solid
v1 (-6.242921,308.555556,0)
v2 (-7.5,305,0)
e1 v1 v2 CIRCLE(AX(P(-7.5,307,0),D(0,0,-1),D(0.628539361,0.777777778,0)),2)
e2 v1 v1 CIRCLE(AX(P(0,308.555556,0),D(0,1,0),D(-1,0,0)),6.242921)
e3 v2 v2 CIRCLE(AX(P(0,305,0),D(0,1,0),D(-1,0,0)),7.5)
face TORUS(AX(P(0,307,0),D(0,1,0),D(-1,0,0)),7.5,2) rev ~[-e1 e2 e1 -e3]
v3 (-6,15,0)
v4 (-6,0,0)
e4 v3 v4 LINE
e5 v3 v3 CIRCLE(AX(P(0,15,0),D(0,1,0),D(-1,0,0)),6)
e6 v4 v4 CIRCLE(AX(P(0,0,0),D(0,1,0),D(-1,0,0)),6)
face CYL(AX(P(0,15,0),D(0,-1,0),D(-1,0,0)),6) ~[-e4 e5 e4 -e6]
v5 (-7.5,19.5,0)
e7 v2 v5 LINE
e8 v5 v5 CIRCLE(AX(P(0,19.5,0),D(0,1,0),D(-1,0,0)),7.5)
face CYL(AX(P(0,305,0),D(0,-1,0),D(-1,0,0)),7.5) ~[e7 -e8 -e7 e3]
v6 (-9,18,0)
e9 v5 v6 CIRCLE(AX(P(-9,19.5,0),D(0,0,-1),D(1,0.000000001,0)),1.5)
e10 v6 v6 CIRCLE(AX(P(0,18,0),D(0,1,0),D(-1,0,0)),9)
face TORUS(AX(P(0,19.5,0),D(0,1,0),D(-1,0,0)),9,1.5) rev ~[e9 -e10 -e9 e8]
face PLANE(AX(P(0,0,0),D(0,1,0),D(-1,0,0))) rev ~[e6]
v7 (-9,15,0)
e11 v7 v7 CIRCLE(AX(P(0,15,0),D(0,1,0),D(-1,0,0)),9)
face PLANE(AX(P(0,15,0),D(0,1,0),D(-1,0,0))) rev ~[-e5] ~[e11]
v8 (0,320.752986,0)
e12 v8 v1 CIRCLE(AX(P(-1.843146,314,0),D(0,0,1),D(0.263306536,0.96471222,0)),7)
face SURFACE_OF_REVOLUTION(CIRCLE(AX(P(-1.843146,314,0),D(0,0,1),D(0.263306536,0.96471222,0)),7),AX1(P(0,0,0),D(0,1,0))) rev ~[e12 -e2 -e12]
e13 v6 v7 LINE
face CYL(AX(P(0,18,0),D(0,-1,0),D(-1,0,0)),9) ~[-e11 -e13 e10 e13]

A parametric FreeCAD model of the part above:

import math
import FreeCAD as App
import Part
import Sketcher

V = App.Vector
Q = App.Units.Quantity

doc = App.newDocument("Part")
params = doc.addObject("Spreadsheet::Sheet", "Params")
for row, (alias, value) in enumerate([
    ("sketch1_radius", "7 mm"),
    ("sketch1_radius2", "2 mm"),
    ("sketch1_radius3", "1.5 mm"),
    ("sketch1_width", "6 mm"),
    ("sketch1_width2", "3 mm"),
    ("revolution_angle", "360 deg"),
], start=1):
    params.set(f"A{row}", alias)
    params.set(f"B{row}", "=" + value)
    params.setAlias(f"B{row}", alias)

body = doc.addObject("PartDesign::Body", "Body")

sketch1 = body.newObject("Sketcher::SketchObject", "Sketch")
sketch1.AttachmentSupport = (doc.getObject("XY_Plane"), [""])
sketch1.MapMode = "FlatFace"
sketch1.addGeometry([
    Part.LineSegment(V(-6, 0, 0), V(0, 0, 0)),
    Part.LineSegment(V(0, 0, 0), V(0, 320.8, 0)),
    Part.ArcOfCircle(Part.Circle(V(-1.8, 314, 0), V(0, 0, 1), 7), math.radians(75), math.radians(231)),
    Part.ArcOfCircle(Part.Circle(V(-7.5, 307, 0), V(0, 0, 1), 2), math.radians(-90), math.radians(51)),
    Part.LineSegment(V(-7.5, 305, 0), V(-7.5, 19.5, 0)),
    Part.ArcOfCircle(Part.Circle(V(-9, 19.5, 0), V(0, 0, 1), 1.5), math.radians(-90), math.radians(0)),
    Part.LineSegment(V(-9, 18, 0), V(-9, 15, 0)),
    Part.LineSegment(V(-9, 15, 0), V(-6, 15, 0)),
    Part.LineSegment(V(-6, 15, 0), V(-6, 0, 0)),
], False)
sketch1.addConstraint([
    Sketcher.Constraint("Coincident", 0, 2, 1, 1),
    Sketcher.Constraint("Coincident", 1, 2, 2, 1),
    Sketcher.Constraint("Tangent", 2, 2, 3, 2),
    Sketcher.Constraint("Coincident", 3, 1, 4, 1),
    Sketcher.Constraint("Tangent", 4, 2, 5, 2),
    Sketcher.Constraint("Coincident", 5, 1, 6, 1),
    Sketcher.Constraint("Coincident", 6, 2, 7, 1),
    Sketcher.Constraint("Coincident", 7, 2, 8, 1),
    Sketcher.Constraint("Coincident", 8, 2, 0, 1),
    Sketcher.Constraint("Horizontal", 0),
    Sketcher.Constraint("Vertical", 1),
    Sketcher.Constraint("Vertical", 4),
    Sketcher.Constraint("Vertical", 6),
    Sketcher.Constraint("Horizontal", 7),
    Sketcher.Constraint("Vertical", 8),
    Sketcher.Constraint("Coincident", 0, 2, -1, 1),
    Sketcher.Constraint("Equal", 7, 6),
    Sketcher.Constraint("Radius", 2, Q("7 mm")),
    Sketcher.Constraint("Radius", 3, Q("2 mm")),
    Sketcher.Constraint("Radius", 5, Q("1.5 mm")),
    Sketcher.Constraint("DistanceX", 0, 1, 0, 2, Q("6 mm")),
    Sketcher.Constraint("DistanceX", 7, 1, 7, 2, Q("3 mm")),
    Sketcher.Constraint("DistanceY", 8, 2, 8, 1, Q("15 mm")),
    Sketcher.Constraint("DistanceY", 4, 2, 4, 1, Q("285.5 mm")),
    Sketcher.Constraint("DistanceY", -1, 1, 2, 3, Q("314 mm")),
    Sketcher.Constraint("DistanceX", 5, 3, -1, 1, Q("9 mm")),
    Sketcher.Constraint("DistanceX", 3, 3, -1, 1, Q("7.5 mm")),
])
sketch1.setExpression("Constraints[17]", "Params.sketch1_radius")
sketch1.setExpression("Constraints[18]", "Params.sketch1_radius2")
sketch1.setExpression("Constraints[19]", "Params.sketch1_radius3")
sketch1.setExpression("Constraints[20]", "Params.sketch1_width")
sketch1.setExpression("Constraints[21]", "Params.sketch1_width2")
revolution = body.newObject("PartDesign::Revolution", "Revolution")
revolution.Profile = sketch1
revolution.ReferenceAxis = (sketch1, ["V_Axis"])
revolution.setExpression("Angle", "Params.revolution_angle")

doc.recompute()
